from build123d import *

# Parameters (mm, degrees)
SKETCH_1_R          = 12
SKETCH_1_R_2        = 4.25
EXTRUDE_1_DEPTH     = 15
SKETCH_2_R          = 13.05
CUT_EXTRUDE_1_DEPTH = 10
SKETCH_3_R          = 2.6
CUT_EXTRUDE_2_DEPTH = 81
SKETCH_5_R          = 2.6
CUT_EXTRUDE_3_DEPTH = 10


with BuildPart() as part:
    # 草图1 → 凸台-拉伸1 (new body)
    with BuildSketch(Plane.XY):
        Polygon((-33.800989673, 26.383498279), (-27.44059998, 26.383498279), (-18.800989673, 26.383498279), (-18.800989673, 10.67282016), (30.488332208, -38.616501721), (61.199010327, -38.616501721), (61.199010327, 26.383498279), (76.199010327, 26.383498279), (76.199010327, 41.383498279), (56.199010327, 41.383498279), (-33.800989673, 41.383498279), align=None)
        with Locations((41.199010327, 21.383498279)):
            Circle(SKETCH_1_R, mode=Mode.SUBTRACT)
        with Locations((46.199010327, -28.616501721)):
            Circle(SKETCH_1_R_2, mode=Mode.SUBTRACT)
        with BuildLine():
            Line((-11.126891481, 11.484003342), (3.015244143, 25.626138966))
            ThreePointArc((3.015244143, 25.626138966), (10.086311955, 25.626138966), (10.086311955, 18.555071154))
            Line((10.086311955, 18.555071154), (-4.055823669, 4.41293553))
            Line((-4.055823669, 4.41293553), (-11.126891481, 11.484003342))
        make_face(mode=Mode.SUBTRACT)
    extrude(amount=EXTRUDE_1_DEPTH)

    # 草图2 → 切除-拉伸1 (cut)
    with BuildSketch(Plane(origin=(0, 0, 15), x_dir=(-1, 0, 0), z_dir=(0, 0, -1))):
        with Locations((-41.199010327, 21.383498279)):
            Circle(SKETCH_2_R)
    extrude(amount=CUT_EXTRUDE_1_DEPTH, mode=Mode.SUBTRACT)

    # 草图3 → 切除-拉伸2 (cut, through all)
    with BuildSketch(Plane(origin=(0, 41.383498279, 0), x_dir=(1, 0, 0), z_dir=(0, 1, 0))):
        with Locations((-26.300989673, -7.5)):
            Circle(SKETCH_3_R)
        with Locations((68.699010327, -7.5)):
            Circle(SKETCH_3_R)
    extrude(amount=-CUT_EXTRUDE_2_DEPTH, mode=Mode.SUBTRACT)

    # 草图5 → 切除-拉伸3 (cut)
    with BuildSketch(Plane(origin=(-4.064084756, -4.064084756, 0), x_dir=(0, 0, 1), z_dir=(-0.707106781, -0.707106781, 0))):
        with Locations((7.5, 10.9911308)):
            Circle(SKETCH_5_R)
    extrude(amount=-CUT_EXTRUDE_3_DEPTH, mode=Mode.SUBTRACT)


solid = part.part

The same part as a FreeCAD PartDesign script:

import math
import FreeCAD as App
import Part
import Sketcher
Q = App.Units.Quantity


def add_polygon(sketch, points):
    """Adds a closed chain of lines whose ends are joined by coincident constraints."""
    first, n = sketch.GeometryCount, len(points)
    for a, b in zip(points, points[1:] + points[:1]):
        sketch.addGeometry(Part.LineSegment(App.Vector(*a, 0), App.Vector(*b, 0)), False)
    for i in range(n):
        sketch.addConstraint(Sketcher.Constraint("Coincident", first + i, 2, first + (i + 1) % n, 1))

doc = App.newDocument("Part")
params = doc.addObject("Spreadsheet::Sheet", "Params")
for row, (alias, value) in enumerate([
    ("sketch1_diameter", "24 mm"),
    ("sketch1_radius", "5 mm"),
    ("sketch1_diameter2", "8.5 mm"),
    ("sketch1_width", "15 mm"),
    ("sketch1_width2", "110 mm"),
    ("pad1_length", "15 mm"),
    ("sketch2_diameter", "26.1 mm"),
    ("pocket1_length", "10 mm"),
    ("sketch3_diameter", "5.2 mm"),
    ("sketch4_diameter", "5.2 mm"),
    ("pocket3_length", "10 mm"),
], start=1):
    params.set(f"A{row}", alias)
    params.set(f"B{row}", "=" + value)
    params.setAlias(f"B{row}", alias)

body = doc.addObject("PartDesign::Body", "Body")

# Sketch on XY plane
sketch1 = doc.addObject("Sketcher::SketchObject", "Sketch")
body.addObject(sketch1)
sketch1.AttachmentSupport = (doc.XY_Plane, [""])
sketch1.MapMode = "FlatFace"
add_polygon(sketch1, [(-33.8, 26.4), (-18.8, 26.4), (-18.8, 10.7), (30.5, -38.6), (61.2, -38.6), (61.2, 26.4), (76.2, 26.4), (76.2, 41.4), (-33.8, 41.4)])  # lines 0-8
sketch1.addGeometry(Part.Circle(App.Vector(46.2, -28.6, 0), App.Vector(0, 0, 1), 4.2), False)  # 9
sketch1.addGeometry(Part.LineSegment(App.Vector(-4.1, 4.4, 0), App.Vector(-11.1, 11.5, 0)), False)  # 10
sketch1.addGeometry(Part.LineSegment(App.Vector(-11.1, 11.5, 0), App.Vector(3, 25.6, 0)), False)  # 11
sketch1.addGeometry(Part.ArcOfCircle(Part.Circle(App.Vector(6.6, 22.1, 0), App.Vector(0, 0, 1), 5), math.radians(-45), math.radians(135)), False)  # 12
sketch1.addGeometry(Part.LineSegment(App.Vector(10.1, 18.6, 0), App.Vector(-4.1, 4.4, 0)), False)  # 13
sketch1.addGeometry(Part.Circle(App.Vector(41.2, 21.4, 0), App.Vector(0, 0, 1), 12), False)  # 14
sketch1.addConstraint(Sketcher.Constraint("Coincident", 10, 2, 11, 1))
sketch1.addConstraint(Sketcher.Constraint("Tangent", 11, 2, 12, 2))
sketch1.addConstraint(Sketcher.Constraint("Tangent", 12, 1, 13, 1))
sketch1.addConstraint(Sketcher.Constraint("Coincident", 13, 2, 10, 1))
sketch1.addConstraint(Sketcher.Constraint("Horizontal", 0))
sketch1.addConstraint(Sketcher.Constraint("Vertical", 1))
sketch1.addConstraint(Sketcher.Constraint("Horizontal", 3))
sketch1.addConstraint(Sketcher.Constraint("Vertical", 4))
sketch1.addConstraint(Sketcher.Constraint("Horizontal", 5))
sketch1.addConstraint(Sketcher.Constraint("Vertical", 6))
sketch1.addConstraint(Sketcher.Constraint("Horizontal", 7))
sketch1.addConstraint(Sketcher.Constraint("Vertical", 8))
sketch1.addConstraint(Sketcher.Constraint("Parallel", 2, 10))
sketch1.addConstraint(Sketcher.Constraint("Perpendicular", 10, 11))
sketch1.addConstraint(Sketcher.Constraint("Parallel", 11, 13))
sketch1.addConstraint(Sketcher.Constraint("Horizontal", 0, 2, 4, 2))
sketch1.addConstraint(Sketcher.Constraint("Equal", 0, 5))
sketch1.addConstraint(Sketcher.Constraint("Equal", 5, 6))
sketch1.addConstraint(Sketcher.Constraint("Diameter", 14, Q("24 mm")))
sketch1.addConstraint(Sketcher.Constraint("Radius", 12, Q("5 mm")))
sketch1.addConstraint(Sketcher.Constraint("Diameter", 9, Q("8.5 mm")))
sketch1.addConstraint(Sketcher.Constraint("DistanceX", 0, 1, 0, 2, Q("15 mm")))
sketch1.addConstraint(Sketcher.Constraint("DistanceX", 7, 2, 7, 1, Q("110 mm")))
sketch1.addConstraint(Sketcher.Constraint("DistanceY", 4, 1, 4, 2, Q("65 mm")))
sketch1.addConstraint(Sketcher.Constraint("Angle", 2, Q("-45 deg")))
sketch1.addConstraint(Sketcher.Constraint("Distance", 11, Q("20 mm")))
sketch1.addConstraint(Sketcher.Constraint("DistanceX", 14, 3, 9, 3, Q("5 mm")))
sketch1.addConstraint(Sketcher.Constraint("DistanceY", 9, 3, 14, 3, Q("50 mm")))
sketch1.addConstraint(Sketcher.Constraint("DistanceX", 0, 2, 14, 3, Q("60 mm")))
sketch1.addConstraint(Sketcher.Constraint("DistanceY", 14, 3, 0, 2, Q("5 mm")))
sketch1.addConstraint(Sketcher.Constraint("DistanceX", 3, 1, 3, 2, Q("30.710678 mm")))
sketch1.addConstraint(Sketcher.Constraint("DistanceY", 9, 3, -1, 1, Q("28.616502 mm")))
sketch1.addConstraint(Sketcher.Constraint("DistanceX", 1, 2, 10, 2, Q("7.674098 mm")))
sketch1.addConstraint(Sketcher.Constraint("DistanceX", -1, 1, 9, 3, Q("46.19901 mm")))
sketch1.addConstraint(Sketcher.Constraint("DistanceY", -1, 1, 11, 2, Q("25.626139 mm")))
sketch1.setExpression("Constraints[27]", "Params.sketch1_diameter")
sketch1.setExpression("Constraints[28]", "Params.sketch1_radius")
sketch1.setExpression("Constraints[29]", "Params.sketch1_diameter2")
sketch1.setExpression("Constraints[30]", "Params.sketch1_width")
sketch1.setExpression("Constraints[31]", "Params.sketch1_width2")
pad1 = doc.addObject("PartDesign::Pad", "Pad")
body.addObject(pad1)
pad1.Profile = sketch1
pad1.setExpression("Length", "Params.pad1_length")

# Sketch on XY plane
sketch2 = doc.addObject("Sketcher::SketchObject", "Sketch001")
body.addObject(sketch2)
sketch2.AttachmentSupport = (doc.XY_Plane, [""])
sketch2.MapMode = "FlatFace"
sketch2.AttachmentOffset = App.Placement(App.Vector(0, 0, 15), App.Rotation())
sketch2.addGeometry(Part.Circle(App.Vector(41, 21, 0), App.Vector(0, 0, 1), 13), False)
sketch2.addConstraint(Sketcher.Constraint("Diameter", 0, Q("26.1 mm")))
sketch2.addConstraint(Sketcher.Constraint("DistanceY", -1, 1, 0, 3, Q("21.383498 mm")))
sketch2.addConstraint(Sketcher.Constraint("DistanceX", -1, 1, 0, 3, Q("41.19901 mm")))
sketch2.setExpression("Constraints[0]", "Params.sketch2_diameter")
pocket1 = doc.addObject("PartDesign::Pocket", "Pocket")
body.addObject(pocket1)
pocket1.Profile = sketch2
pocket1.setExpression("Length", "Params.pocket1_length")

# Sketch on XZ plane
sketch3 = doc.addObject("Sketcher::SketchObject", "Sketch002")
body.addObject(sketch3)
sketch3.AttachmentSupport = (doc.XZ_Plane, [""])
sketch3.MapMode = "FlatFace"
sketch3.AttachmentOffset = App.Placement(App.Vector(0, 0, -41.383498), App.Rotation())
sketch3.addGeometry(Part.Circle(App.Vector(-26.3, 7.5, 0), App.Vector(0, 0, 1), 2.6), False)
sketch3.addGeometry(Part.Circle(App.Vector(68.7, 7.5, 0), App.Vector(0, 0, 1), 2.6), False)
sketch3.addConstraint(Sketcher.Constraint("Equal", 0, 1))
sketch3.addConstraint(Sketcher.Constraint("Horizontal", 0, 3, 1, 3))
sketch3.addConstraint(Sketcher.Constraint("Diameter", 0, Q("5.2 mm")))
sketch3.addConstraint(Sketcher.Constraint("DistanceX", 0, 3, 1, 3, Q("95 mm")))
sketch3.addConstraint(Sketcher.Constraint("DistanceY", -1, 1, 0, 3, Q("7.5 mm")))
sketch3.addConstraint(Sketcher.Constraint("DistanceX", 0, 3, -1, 1, Q("26.30099 mm")))
sketch3.setExpression("Constraints[2]", "Params.sketch3_diameter")
pocket2 = doc.addObject("PartDesign::Pocket", "Pocket001")
body.addObject(pocket2)
pocket2.Profile = sketch3
pocket2.Type = "ThroughAll"
pocket2.Reversed = True

# Sketch on an angled plane
sketch4 = doc.addObject("Sketcher::SketchObject", "Sketch003")
body.addObject(sketch4)
sketch4.Placement = App.Placement(App.Vector(-4.064085, -4.064085, 0), App.Rotation(App.Vector(0, 0, 1), App.Vector(-0.707106781, 0.707106781, 0), App.Vector(-0.707106781, -0.707106781, 0), "ZXY"))
sketch4.addGeometry(Part.Circle(App.Vector(7.5, 11, 0), App.Vector(0, 0, 1), 2.6), False)
sketch4.addConstraint(Sketcher.Constraint("Diameter", 0, Q("5.2 mm")))
sketch4.addConstraint(Sketcher.Constraint("DistanceX", -1, 1, 0, 3, Q("7.5 mm")))
sketch4.addConstraint(Sketcher.Constraint("DistanceY", -1, 1, 0, 3, Q("10.991131 mm")))
sketch4.setExpression("Constraints[0]", "Params.sketch4_diameter")
pocket3 = doc.addObject("PartDesign::Pocket", "Pocket002")
body.addObject(pocket3)
pocket3.Profile = sketch4
pocket3.setExpression("Length", "Params.pocket3_length")

doc.recompute()
